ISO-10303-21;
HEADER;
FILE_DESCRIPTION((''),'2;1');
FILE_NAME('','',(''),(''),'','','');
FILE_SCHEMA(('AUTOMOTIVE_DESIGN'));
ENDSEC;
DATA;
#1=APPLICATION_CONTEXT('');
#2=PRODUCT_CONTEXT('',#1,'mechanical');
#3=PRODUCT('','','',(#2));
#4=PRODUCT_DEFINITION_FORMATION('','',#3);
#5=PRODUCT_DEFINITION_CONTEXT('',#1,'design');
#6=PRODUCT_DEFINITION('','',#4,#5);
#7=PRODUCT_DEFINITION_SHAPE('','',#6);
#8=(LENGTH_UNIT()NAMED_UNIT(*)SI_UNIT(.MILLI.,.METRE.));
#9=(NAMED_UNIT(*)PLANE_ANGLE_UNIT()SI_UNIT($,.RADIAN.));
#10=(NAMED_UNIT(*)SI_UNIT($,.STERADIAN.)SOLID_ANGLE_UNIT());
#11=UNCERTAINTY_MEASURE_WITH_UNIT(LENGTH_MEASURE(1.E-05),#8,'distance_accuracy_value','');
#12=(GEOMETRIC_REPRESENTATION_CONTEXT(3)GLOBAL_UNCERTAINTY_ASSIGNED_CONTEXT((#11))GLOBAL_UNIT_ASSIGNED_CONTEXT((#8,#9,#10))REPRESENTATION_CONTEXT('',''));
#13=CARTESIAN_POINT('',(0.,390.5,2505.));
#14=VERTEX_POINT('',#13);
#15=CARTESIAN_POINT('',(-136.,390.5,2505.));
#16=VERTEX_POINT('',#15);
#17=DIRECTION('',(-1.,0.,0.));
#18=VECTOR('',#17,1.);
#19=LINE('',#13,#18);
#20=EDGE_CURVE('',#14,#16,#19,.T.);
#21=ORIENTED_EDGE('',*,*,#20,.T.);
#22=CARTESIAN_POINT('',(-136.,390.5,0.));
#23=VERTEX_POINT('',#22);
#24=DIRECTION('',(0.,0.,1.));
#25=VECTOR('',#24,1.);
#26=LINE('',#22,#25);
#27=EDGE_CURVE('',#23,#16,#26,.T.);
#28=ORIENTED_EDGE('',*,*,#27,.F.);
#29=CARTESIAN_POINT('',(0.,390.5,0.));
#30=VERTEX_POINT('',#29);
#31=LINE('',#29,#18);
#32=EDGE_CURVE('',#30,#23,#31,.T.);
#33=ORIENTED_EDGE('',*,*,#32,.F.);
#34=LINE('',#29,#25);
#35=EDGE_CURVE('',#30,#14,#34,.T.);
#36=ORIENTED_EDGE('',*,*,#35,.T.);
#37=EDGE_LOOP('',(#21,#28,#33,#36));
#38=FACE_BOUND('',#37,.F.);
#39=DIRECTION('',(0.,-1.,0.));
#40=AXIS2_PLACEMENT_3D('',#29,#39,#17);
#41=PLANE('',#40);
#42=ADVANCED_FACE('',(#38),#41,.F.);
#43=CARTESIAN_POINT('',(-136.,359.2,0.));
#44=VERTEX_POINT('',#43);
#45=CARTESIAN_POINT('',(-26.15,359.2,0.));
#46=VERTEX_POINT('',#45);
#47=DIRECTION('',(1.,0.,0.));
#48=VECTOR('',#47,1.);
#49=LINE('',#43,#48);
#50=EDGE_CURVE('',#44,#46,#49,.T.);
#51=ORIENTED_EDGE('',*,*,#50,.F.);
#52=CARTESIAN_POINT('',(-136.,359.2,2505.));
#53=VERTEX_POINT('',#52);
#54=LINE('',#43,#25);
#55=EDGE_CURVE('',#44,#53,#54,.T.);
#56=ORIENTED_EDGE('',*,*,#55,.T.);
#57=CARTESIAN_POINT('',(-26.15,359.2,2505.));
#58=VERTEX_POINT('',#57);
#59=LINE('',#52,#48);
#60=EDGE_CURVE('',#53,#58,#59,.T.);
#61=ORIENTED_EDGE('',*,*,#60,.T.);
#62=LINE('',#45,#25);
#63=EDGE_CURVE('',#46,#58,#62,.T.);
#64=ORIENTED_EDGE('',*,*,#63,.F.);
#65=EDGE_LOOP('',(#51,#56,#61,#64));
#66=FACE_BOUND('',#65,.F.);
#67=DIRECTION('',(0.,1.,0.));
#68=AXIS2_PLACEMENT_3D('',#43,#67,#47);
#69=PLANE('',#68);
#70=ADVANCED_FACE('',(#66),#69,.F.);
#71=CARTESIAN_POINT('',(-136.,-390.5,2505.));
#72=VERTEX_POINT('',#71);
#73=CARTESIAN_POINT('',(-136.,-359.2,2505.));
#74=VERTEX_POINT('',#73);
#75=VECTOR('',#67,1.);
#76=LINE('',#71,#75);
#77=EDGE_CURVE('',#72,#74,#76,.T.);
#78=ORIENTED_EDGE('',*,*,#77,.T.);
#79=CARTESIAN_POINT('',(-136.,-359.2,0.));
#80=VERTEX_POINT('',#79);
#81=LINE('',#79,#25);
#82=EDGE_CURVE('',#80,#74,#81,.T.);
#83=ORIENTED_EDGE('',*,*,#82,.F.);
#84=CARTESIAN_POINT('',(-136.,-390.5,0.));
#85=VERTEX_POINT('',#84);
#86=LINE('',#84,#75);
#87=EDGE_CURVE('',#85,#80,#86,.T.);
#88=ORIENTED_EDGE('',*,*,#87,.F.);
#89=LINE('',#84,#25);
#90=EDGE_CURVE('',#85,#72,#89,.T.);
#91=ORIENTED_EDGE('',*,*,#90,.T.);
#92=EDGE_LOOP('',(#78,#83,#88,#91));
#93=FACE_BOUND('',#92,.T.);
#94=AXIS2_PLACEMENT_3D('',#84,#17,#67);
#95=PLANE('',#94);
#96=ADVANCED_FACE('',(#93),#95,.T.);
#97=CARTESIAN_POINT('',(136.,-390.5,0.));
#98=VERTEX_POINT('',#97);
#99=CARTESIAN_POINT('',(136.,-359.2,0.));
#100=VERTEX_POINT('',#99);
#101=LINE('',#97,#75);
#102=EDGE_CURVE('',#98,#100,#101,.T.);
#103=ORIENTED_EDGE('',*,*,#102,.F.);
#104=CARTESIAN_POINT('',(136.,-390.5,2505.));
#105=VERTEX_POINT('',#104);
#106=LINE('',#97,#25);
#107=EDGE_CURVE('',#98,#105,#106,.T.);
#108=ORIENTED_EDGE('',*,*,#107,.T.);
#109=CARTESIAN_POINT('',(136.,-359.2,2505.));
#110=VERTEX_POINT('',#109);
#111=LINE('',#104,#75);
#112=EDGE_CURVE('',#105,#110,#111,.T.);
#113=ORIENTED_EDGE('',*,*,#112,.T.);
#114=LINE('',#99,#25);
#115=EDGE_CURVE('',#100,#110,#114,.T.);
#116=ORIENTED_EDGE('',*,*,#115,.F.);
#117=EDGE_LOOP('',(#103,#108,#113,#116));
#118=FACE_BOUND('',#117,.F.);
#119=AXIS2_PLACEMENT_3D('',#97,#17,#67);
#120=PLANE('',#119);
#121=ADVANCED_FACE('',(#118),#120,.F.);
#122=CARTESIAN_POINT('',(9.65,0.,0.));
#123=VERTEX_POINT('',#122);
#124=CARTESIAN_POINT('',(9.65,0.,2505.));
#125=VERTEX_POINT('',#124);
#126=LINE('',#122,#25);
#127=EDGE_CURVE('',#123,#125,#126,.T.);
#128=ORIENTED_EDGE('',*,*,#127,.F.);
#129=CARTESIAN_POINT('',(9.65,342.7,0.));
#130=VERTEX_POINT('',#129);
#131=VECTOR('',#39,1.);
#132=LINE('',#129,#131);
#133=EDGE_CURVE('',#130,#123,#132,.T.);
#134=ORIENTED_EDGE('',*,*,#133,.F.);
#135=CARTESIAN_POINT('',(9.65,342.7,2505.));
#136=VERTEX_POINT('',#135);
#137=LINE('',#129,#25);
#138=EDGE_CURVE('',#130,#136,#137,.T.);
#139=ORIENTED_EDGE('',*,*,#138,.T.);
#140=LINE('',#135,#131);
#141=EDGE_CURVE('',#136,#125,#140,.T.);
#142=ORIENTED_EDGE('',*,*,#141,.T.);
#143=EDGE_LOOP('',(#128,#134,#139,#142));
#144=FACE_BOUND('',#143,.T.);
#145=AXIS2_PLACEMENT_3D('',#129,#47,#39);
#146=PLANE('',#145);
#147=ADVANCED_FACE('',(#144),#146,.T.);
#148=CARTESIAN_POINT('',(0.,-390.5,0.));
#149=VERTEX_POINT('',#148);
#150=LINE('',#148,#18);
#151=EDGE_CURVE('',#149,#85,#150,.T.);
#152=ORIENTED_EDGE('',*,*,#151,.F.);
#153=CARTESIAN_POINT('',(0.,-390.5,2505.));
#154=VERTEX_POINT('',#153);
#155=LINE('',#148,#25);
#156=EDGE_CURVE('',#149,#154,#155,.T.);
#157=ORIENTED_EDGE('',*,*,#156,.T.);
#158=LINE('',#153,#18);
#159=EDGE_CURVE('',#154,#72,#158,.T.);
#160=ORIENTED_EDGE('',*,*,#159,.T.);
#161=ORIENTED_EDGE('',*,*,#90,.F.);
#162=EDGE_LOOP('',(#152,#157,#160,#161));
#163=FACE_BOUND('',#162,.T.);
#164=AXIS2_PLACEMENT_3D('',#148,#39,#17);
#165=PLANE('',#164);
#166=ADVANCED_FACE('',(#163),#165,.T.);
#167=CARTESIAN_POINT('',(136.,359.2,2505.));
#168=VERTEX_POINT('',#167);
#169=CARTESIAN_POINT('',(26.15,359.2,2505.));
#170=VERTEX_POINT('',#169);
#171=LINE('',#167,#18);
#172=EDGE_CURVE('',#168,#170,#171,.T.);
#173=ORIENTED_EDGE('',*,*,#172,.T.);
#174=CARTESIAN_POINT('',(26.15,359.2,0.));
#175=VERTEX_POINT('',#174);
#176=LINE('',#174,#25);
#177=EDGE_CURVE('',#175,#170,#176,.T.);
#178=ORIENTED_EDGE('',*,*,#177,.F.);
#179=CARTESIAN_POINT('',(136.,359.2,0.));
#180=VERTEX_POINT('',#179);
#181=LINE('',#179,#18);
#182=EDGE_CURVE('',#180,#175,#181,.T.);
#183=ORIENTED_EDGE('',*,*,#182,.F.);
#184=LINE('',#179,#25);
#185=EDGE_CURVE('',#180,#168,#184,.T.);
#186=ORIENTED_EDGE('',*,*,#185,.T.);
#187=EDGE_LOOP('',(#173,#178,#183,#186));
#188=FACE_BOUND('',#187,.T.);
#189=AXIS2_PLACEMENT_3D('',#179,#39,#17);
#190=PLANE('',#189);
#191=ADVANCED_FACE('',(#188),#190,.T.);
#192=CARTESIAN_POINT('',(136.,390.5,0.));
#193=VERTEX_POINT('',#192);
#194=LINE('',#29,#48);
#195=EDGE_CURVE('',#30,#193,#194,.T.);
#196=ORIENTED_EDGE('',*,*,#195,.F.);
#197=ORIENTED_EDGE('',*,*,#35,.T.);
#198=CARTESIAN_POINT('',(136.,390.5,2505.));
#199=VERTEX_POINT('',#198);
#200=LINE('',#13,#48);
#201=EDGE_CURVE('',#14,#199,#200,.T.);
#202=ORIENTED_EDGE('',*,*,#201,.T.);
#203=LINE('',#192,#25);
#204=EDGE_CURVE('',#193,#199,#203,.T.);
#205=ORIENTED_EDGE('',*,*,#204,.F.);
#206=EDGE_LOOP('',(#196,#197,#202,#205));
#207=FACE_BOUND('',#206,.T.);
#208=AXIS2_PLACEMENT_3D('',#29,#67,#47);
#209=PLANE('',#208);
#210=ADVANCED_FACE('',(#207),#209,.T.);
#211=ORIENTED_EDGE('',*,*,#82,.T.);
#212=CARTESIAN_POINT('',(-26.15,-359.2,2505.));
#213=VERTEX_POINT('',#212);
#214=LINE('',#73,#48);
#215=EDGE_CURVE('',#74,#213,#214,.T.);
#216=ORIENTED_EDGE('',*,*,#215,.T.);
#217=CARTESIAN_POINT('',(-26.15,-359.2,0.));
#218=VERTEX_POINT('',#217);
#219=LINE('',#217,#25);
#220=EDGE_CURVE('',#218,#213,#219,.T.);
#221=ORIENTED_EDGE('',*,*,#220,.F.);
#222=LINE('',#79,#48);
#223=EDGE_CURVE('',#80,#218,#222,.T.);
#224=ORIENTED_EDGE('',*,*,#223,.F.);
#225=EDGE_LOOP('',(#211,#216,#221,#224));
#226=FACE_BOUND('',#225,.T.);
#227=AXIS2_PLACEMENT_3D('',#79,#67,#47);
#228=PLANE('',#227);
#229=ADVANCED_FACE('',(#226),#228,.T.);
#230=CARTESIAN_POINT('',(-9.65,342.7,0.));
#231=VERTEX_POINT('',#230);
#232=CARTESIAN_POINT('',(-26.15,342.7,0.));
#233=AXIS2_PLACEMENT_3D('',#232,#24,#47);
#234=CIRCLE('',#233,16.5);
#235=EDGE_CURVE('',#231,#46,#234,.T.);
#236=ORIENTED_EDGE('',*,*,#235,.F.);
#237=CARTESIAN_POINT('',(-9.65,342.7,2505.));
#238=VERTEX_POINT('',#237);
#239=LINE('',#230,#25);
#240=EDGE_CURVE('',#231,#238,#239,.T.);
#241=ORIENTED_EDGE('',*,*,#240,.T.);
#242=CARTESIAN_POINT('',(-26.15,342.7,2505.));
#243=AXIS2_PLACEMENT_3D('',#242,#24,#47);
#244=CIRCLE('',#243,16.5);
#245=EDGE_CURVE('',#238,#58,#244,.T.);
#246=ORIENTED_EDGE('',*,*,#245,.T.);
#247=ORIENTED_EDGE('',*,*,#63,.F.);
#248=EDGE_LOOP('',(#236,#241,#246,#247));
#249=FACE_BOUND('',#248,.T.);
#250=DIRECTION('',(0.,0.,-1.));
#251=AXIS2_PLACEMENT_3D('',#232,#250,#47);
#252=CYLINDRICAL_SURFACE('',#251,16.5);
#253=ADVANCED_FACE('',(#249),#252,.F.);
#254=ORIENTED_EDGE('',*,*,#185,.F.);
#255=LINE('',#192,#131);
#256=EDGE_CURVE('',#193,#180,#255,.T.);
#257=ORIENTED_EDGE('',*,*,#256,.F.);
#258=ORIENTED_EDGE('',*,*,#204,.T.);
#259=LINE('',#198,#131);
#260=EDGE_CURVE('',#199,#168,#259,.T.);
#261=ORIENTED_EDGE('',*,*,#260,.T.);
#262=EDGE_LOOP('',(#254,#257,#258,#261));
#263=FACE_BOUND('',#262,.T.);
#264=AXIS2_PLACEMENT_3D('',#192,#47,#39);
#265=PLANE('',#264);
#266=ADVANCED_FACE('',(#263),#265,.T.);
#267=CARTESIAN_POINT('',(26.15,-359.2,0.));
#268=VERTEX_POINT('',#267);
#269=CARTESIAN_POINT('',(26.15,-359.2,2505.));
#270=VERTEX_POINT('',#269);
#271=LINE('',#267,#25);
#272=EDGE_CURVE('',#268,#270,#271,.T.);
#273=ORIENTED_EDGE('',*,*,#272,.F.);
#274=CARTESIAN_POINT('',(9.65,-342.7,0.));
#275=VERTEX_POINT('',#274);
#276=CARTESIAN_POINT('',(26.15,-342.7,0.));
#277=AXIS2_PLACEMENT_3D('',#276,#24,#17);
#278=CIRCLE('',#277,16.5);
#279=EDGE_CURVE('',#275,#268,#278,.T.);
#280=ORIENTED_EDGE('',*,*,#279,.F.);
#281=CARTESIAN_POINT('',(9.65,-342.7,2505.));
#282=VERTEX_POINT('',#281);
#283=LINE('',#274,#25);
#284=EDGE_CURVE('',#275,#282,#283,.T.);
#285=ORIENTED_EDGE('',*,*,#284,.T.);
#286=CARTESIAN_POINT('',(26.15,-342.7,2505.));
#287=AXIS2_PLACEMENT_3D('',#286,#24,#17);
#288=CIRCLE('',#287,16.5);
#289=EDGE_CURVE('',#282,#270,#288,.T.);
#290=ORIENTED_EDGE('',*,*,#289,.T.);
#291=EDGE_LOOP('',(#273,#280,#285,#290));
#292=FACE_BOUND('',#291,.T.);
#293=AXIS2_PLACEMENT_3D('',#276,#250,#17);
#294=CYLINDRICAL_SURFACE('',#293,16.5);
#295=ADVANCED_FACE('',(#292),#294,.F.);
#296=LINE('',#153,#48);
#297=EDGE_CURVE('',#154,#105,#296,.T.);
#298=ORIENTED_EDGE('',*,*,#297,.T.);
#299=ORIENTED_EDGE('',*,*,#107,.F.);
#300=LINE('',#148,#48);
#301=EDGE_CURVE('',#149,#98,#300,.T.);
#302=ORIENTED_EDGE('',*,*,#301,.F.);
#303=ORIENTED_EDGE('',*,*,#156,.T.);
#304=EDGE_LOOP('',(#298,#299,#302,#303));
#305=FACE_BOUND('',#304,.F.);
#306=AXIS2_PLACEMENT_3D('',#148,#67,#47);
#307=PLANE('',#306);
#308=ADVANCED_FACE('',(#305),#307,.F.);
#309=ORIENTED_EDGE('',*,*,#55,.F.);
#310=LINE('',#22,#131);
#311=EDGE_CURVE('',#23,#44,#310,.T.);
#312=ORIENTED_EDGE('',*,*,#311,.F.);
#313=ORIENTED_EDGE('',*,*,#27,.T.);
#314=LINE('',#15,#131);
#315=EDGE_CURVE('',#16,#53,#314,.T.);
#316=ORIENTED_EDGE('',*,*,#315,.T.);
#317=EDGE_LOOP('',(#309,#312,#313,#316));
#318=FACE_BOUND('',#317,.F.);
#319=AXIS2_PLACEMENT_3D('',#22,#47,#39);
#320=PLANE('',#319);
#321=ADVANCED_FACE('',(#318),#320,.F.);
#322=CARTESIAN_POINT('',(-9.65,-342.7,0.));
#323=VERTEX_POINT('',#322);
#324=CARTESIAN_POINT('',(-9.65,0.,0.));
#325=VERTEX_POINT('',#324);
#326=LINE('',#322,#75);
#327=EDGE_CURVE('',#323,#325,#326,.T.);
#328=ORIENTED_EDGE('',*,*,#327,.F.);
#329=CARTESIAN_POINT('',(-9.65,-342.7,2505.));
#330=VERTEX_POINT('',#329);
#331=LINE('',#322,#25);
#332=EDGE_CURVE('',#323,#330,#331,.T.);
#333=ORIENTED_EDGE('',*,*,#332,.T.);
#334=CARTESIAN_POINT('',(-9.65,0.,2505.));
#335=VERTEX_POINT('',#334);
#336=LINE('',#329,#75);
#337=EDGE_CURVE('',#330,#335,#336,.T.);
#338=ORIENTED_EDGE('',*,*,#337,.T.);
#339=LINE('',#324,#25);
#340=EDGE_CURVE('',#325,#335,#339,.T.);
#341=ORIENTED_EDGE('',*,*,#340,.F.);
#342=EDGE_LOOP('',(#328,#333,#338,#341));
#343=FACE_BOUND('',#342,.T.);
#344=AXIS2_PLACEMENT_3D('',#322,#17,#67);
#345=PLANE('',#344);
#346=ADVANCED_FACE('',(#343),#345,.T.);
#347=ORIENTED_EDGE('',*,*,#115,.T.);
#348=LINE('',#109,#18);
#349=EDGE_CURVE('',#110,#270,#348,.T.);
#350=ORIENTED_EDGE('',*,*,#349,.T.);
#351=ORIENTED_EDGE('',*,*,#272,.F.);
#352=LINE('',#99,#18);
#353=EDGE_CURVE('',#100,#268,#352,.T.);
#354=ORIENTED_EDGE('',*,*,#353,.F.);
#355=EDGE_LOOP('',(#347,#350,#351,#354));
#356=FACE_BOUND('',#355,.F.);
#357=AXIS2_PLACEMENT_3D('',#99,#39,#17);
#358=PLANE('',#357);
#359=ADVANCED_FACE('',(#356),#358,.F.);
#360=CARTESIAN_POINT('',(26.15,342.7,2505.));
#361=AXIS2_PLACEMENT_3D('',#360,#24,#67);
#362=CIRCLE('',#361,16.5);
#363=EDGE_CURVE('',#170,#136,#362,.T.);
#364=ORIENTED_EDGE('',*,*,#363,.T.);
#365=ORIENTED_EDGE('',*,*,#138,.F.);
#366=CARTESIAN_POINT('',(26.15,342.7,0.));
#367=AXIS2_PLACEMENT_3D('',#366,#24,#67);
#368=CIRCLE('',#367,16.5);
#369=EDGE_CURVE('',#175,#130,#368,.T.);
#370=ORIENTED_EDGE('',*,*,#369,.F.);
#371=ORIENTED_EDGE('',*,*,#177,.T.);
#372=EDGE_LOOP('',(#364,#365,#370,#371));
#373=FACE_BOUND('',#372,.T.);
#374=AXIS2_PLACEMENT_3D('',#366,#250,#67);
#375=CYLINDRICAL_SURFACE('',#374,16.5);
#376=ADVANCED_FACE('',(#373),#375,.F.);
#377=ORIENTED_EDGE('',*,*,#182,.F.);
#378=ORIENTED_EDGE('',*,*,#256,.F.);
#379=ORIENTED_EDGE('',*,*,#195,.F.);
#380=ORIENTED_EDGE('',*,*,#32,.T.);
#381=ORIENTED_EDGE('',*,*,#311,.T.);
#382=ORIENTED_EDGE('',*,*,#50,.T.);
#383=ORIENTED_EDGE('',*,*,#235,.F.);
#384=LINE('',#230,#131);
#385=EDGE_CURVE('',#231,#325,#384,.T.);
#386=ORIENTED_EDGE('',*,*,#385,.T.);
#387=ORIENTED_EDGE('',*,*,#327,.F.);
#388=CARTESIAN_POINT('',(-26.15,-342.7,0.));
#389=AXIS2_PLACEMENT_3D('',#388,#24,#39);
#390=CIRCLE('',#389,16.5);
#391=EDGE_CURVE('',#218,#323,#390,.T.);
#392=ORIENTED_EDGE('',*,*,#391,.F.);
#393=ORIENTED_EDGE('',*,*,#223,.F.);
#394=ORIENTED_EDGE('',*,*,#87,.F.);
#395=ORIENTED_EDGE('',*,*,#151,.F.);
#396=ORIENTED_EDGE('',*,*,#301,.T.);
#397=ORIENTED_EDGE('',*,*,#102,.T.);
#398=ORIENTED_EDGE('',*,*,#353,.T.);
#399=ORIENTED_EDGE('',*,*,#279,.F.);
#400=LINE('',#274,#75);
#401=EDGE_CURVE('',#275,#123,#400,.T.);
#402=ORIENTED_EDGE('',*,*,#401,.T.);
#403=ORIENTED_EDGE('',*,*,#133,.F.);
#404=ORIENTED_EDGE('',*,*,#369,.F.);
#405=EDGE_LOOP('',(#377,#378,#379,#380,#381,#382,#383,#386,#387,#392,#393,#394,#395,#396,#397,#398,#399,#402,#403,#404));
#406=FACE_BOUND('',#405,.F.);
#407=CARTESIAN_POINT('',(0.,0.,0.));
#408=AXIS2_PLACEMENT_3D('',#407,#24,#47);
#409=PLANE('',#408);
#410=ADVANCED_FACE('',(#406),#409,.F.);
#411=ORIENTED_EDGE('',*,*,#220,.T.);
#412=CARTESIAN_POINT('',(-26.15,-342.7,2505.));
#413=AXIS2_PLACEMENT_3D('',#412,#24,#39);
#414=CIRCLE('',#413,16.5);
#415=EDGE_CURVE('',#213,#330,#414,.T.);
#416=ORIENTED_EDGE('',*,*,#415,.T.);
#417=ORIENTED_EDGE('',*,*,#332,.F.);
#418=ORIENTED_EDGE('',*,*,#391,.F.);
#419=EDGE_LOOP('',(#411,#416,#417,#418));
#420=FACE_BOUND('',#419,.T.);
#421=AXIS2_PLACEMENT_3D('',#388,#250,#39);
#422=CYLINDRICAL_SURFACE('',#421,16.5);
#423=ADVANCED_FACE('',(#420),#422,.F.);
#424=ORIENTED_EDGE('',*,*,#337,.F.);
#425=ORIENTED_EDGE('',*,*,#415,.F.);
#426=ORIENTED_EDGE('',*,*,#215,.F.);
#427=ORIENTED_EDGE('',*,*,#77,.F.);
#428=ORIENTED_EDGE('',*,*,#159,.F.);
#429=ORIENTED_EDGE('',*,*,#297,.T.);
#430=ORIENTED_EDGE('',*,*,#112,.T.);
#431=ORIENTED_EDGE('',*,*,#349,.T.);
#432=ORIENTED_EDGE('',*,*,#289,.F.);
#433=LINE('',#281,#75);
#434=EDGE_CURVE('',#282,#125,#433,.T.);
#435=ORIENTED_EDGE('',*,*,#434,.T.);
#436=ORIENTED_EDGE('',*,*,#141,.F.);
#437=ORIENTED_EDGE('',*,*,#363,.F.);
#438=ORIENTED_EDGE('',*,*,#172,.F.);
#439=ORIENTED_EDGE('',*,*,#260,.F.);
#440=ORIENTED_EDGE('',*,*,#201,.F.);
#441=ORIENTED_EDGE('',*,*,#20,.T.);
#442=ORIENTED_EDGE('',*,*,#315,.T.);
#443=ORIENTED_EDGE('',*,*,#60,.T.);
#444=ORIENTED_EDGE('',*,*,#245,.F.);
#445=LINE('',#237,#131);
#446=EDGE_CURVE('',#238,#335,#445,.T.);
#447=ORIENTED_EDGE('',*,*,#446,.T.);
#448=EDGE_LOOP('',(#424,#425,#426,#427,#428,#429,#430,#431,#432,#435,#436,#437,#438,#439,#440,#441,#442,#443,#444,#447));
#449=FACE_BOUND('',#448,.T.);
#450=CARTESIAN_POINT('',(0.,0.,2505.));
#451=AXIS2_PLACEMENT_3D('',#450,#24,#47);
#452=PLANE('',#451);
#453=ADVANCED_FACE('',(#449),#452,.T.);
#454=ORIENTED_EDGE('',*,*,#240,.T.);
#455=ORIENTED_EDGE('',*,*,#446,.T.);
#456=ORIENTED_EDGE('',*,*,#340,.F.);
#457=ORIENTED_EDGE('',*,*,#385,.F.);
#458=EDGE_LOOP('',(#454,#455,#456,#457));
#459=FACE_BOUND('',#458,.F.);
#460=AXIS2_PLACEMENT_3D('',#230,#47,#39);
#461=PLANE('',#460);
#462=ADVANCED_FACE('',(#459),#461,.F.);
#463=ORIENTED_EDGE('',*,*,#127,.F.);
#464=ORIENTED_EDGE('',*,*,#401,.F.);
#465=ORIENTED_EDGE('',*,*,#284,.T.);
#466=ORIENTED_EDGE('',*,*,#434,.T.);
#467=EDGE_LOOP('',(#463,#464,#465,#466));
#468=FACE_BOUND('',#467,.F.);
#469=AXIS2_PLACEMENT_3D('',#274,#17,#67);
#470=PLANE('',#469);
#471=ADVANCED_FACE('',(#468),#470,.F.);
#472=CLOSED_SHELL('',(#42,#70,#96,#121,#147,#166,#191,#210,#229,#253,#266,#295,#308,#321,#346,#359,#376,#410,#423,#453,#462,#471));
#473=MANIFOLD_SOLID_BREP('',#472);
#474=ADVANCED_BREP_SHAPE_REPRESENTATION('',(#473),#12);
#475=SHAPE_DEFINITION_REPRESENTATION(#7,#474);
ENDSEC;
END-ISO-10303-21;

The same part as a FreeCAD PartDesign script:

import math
import FreeCAD as App
import Part
import Sketcher

doc = App.newDocument("Part")
body = doc.addObject("PartDesign::Body", "Body")

# Sketch on XY plane
sketch1 = body.newObject("Sketcher::SketchObject", "Sketch")
sketch1.AttachmentSupport = (doc.getObject("XY_Plane"), [""])
sketch1.MapMode = "FlatFace"
sketch1.addGeometry(Part.LineSegment(App.Vector(-136, -359, 0), App.Vector(-136, -390, 0)), False)
sketch1.addGeometry(Part.LineSegment(App.Vector(-136, -390, 0), App.Vector(136, -390, 0)), False)
sketch1.addGeometry(Part.LineSegment(App.Vector(136, -390, 0), App.Vector(136, -359, 0)), False)
sketch1.addGeometry(Part.LineSegment(App.Vector(136, -359, 0), App.Vector(26, -359, 0)), False)
sketch1.addGeometry(Part.ArcOfCircle(Part.Circle(App.Vector(26, -343, 0), App.Vector(0, 0, 1), 16), math.radians(180), math.radians(270)), False)
sketch1.addGeometry(Part.LineSegment(App.Vector(10, -343, 0), App.Vector(10, 343, 0)), False)
sketch1.addGeometry(Part.ArcOfCircle(Part.Circle(App.Vector(26, 343, 0), App.Vector(0, 0, 1), 16), math.radians(90), math.radians(180)), False)
sketch1.addGeometry(Part.LineSegment(App.Vector(26, 359, 0), App.Vector(136, 359, 0)), False)
sketch1.addGeometry(Part.LineSegment(App.Vector(136, 359, 0), App.Vector(136, 390, 0)), False)
sketch1.addGeometry(Part.LineSegment(App.Vector(136, 390, 0), App.Vector(-136, 390, 0)), False)
sketch1.addGeometry(Part.LineSegment(App.Vector(-136, 390, 0), App.Vector(-136, 359, 0)), False)
sketch1.addGeometry(Part.LineSegment(App.Vector(-136, 359, 0), App.Vector(-26, 359, 0)), False)
sketch1.addGeometry(Part.ArcOfCircle(Part.Circle(App.Vector(-26, 343, 0), App.Vector(0, 0, 1), 16), math.radians(0), math.radians(90)), False)
sketch1.addGeometry(Part.LineSegment(App.Vector(-10, 343, 0), App.Vector(-10, -343, 0)), False)
sketch1.addGeometry(Part.ArcOfCircle(Part.Circle(App.Vector(-26, -343, 0), App.Vector(0, 0, 1), 16), math.radians(-90), math.radians(0)), False)
sketch1.addGeometry(Part.LineSegment(App.Vector(-26, -359, 0), App.Vector(-136, -359, 0)), False)
sketch1.addConstraint(Sketcher.Constraint("Coincident", 0, 2, 1, 1))
sketch1.addConstraint(Sketcher.Constraint("Coincident", 1, 2, 2, 1))
sketch1.addConstraint(Sketcher.Constraint("Coincident", 2, 2, 3, 1))
sketch1.addConstraint(Sketcher.Constraint("Tangent", 3, 2, 4, 2))
sketch1.addConstraint(Sketcher.Constraint("Tangent", 4, 1, 5, 1))
sketch1.addConstraint(Sketcher.Constraint("Tangent", 5, 2, 6, 2))
sketch1.addConstraint(Sketcher.Constraint("Tangent", 6, 1, 7, 1))
sketch1.addConstraint(Sketcher.Constraint("Coincident", 7, 2, 8, 1))
sketch1.addConstraint(Sketcher.Constraint("Coincident", 8, 2, 9, 1))
sketch1.addConstraint(Sketcher.Constraint("Coincident", 9, 2, 10, 1))
sketch1.addConstraint(Sketcher.Constraint("Coincident", 10, 2, 11, 1))
sketch1.addConstraint(Sketcher.Constraint("Tangent", 11, 2, 12, 2))
sketch1.addConstraint(Sketcher.Constraint("Tangent", 12, 1, 13, 1))
sketch1.addConstraint(Sketcher.Constraint("Tangent", 13, 2, 14, 2))
sketch1.addConstraint(Sketcher.Constraint("Tangent", 14, 1, 15, 1))
sketch1.addConstraint(Sketcher.Constraint("Coincident", 15, 2, 0, 1))
sketch1.addConstraint(Sketcher.Constraint("Vertical", 0))
sketch1.addConstraint(Sketcher.Constraint("Horizontal", 1))
sketch1.addConstraint(Sketcher.Constraint("Vertical", 2))
sketch1.addConstraint(Sketcher.Constraint("Horizontal", 3))
sketch1.addConstraint(Sketcher.Constraint("Vertical", 5))
sketch1.addConstraint(Sketcher.Constraint("Horizontal", 7))
sketch1.addConstraint(Sketcher.Constraint("Vertical", 8))
sketch1.addConstraint(Sketcher.Constraint("Horizontal", 9))
sketch1.addConstraint(Sketcher.Constraint("Vertical", 10))
sketch1.addConstraint(Sketcher.Constraint("Horizontal", 11))
sketch1.addConstraint(Sketcher.Constraint("Vertical", 13))
sketch1.addConstraint(Sketcher.Constraint("Horizontal", 15))
sketch1.addConstraint(Sketcher.Constraint("Equal", 4, 6))
sketch1.addConstraint(Sketcher.Constraint("Equal", 6, 12))
sketch1.addConstraint(Sketcher.Constraint("Equal", 12, 14))
sketch1.addConstraint(Sketcher.Constraint("Symmetric", 4, 3, 12, 3, -1, 1))
sketch1.addConstraint(Sketcher.Constraint("Symmetric", 0, 2, 8, 2, -1, 1))
sketch1.addConstraint(Sketcher.Constraint("Symmetric", 7, 2, 10, 2, -2))
sketch1.addConstraint(Sketcher.Constraint("Symmetric", 2, 2, 15, 2, -2))
sketch1.addConstraint(Sketcher.Constraint("Radius", 4, 16.5))
sketch1.addConstraint(Sketcher.Constraint("DistanceY", 0, 2, 0, 1, 31.3))
sketch1.addConstraint(Sketcher.Constraint("DistanceX", 0, 2, -1, 1, 136.0))
sketch1.addConstraint(Sketcher.Constraint("DistanceY", 0, 2, -1, 1, 390.5))
sketch1.addConstraint(Sketcher.Constraint("DistanceX", -1, 1, 4, 1, 9.65))
pad1 = body.newObject("PartDesign::Pad", "Pad")
pad1.Profile = sketch1
pad1.Length = 2505

doc.recompute()
